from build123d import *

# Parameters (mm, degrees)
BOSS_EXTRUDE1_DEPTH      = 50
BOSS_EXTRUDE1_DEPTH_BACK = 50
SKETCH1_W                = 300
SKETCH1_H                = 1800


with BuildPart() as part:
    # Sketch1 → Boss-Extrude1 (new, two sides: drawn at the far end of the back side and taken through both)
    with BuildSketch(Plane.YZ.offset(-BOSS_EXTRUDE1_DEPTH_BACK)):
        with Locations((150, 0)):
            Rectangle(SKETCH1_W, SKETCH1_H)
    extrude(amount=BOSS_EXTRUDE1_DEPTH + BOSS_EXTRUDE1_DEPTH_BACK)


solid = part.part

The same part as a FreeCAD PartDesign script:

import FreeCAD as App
import Part
import Sketcher
from FreeCAD import Vector

doc = App.newDocument("Part")
body = doc.addObject("PartDesign::Body", "Body")

sketch1 = body.newObject("Sketcher::SketchObject", "Sketch")
sketch1.AttachmentSupport = (doc.getObject("YZ_Plane"), [""])
sketch1.MapMode = "FlatFace"
sketch1.addGeometry(Part.LineSegment(Vector(0, 900, 0), Vector(0, -900, 0)), False)
sketch1.addGeometry(Part.LineSegment(Vector(0, -900, 0), Vector(300, -900, 0)), False)
sketch1.addGeometry(Part.LineSegment(Vector(300, -900, 0), Vector(300, 900, 0)), False)
sketch1.addGeometry(Part.LineSegment(Vector(300, 900, 0), Vector(0, 900, 0)), False)
sketch1.addConstraint(Sketcher.Constraint("Coincident", 0, 2, 1, 1))
sketch1.addConstraint(Sketcher.Constraint("Coincident", 1, 2, 2, 1))
sketch1.addConstraint(Sketcher.Constraint("Coincident", 2, 2, 3, 1))
sketch1.addConstraint(Sketcher.Constraint("Coincident", 3, 2, 0, 1))
sketch1.addConstraint(Sketcher.Constraint("Vertical", 0))
sketch1.addConstraint(Sketcher.Constraint("Horizontal", 1))
sketch1.addConstraint(Sketcher.Constraint("Vertical", 2))
sketch1.addConstraint(Sketcher.Constraint("Horizontal", 3))
sketch1.addConstraint(Sketcher.Constraint("Symmetric", 0, 2, 3, 2, -1, 1))
sketch1.addConstraint(Sketcher.Constraint("DistanceX", 1, 1, 1, 2, 300.0))
sketch1.addConstraint(Sketcher.Constraint("DistanceY", 0, 2, 0, 1, 1800.0))
pad1 = body.newObject("PartDesign::Pad", "Pad")
pad1.Profile = sketch1
pad1.Type = "TwoLengths"
pad1.Length = 50
pad1.Length2 = 50

doc.recompute()
